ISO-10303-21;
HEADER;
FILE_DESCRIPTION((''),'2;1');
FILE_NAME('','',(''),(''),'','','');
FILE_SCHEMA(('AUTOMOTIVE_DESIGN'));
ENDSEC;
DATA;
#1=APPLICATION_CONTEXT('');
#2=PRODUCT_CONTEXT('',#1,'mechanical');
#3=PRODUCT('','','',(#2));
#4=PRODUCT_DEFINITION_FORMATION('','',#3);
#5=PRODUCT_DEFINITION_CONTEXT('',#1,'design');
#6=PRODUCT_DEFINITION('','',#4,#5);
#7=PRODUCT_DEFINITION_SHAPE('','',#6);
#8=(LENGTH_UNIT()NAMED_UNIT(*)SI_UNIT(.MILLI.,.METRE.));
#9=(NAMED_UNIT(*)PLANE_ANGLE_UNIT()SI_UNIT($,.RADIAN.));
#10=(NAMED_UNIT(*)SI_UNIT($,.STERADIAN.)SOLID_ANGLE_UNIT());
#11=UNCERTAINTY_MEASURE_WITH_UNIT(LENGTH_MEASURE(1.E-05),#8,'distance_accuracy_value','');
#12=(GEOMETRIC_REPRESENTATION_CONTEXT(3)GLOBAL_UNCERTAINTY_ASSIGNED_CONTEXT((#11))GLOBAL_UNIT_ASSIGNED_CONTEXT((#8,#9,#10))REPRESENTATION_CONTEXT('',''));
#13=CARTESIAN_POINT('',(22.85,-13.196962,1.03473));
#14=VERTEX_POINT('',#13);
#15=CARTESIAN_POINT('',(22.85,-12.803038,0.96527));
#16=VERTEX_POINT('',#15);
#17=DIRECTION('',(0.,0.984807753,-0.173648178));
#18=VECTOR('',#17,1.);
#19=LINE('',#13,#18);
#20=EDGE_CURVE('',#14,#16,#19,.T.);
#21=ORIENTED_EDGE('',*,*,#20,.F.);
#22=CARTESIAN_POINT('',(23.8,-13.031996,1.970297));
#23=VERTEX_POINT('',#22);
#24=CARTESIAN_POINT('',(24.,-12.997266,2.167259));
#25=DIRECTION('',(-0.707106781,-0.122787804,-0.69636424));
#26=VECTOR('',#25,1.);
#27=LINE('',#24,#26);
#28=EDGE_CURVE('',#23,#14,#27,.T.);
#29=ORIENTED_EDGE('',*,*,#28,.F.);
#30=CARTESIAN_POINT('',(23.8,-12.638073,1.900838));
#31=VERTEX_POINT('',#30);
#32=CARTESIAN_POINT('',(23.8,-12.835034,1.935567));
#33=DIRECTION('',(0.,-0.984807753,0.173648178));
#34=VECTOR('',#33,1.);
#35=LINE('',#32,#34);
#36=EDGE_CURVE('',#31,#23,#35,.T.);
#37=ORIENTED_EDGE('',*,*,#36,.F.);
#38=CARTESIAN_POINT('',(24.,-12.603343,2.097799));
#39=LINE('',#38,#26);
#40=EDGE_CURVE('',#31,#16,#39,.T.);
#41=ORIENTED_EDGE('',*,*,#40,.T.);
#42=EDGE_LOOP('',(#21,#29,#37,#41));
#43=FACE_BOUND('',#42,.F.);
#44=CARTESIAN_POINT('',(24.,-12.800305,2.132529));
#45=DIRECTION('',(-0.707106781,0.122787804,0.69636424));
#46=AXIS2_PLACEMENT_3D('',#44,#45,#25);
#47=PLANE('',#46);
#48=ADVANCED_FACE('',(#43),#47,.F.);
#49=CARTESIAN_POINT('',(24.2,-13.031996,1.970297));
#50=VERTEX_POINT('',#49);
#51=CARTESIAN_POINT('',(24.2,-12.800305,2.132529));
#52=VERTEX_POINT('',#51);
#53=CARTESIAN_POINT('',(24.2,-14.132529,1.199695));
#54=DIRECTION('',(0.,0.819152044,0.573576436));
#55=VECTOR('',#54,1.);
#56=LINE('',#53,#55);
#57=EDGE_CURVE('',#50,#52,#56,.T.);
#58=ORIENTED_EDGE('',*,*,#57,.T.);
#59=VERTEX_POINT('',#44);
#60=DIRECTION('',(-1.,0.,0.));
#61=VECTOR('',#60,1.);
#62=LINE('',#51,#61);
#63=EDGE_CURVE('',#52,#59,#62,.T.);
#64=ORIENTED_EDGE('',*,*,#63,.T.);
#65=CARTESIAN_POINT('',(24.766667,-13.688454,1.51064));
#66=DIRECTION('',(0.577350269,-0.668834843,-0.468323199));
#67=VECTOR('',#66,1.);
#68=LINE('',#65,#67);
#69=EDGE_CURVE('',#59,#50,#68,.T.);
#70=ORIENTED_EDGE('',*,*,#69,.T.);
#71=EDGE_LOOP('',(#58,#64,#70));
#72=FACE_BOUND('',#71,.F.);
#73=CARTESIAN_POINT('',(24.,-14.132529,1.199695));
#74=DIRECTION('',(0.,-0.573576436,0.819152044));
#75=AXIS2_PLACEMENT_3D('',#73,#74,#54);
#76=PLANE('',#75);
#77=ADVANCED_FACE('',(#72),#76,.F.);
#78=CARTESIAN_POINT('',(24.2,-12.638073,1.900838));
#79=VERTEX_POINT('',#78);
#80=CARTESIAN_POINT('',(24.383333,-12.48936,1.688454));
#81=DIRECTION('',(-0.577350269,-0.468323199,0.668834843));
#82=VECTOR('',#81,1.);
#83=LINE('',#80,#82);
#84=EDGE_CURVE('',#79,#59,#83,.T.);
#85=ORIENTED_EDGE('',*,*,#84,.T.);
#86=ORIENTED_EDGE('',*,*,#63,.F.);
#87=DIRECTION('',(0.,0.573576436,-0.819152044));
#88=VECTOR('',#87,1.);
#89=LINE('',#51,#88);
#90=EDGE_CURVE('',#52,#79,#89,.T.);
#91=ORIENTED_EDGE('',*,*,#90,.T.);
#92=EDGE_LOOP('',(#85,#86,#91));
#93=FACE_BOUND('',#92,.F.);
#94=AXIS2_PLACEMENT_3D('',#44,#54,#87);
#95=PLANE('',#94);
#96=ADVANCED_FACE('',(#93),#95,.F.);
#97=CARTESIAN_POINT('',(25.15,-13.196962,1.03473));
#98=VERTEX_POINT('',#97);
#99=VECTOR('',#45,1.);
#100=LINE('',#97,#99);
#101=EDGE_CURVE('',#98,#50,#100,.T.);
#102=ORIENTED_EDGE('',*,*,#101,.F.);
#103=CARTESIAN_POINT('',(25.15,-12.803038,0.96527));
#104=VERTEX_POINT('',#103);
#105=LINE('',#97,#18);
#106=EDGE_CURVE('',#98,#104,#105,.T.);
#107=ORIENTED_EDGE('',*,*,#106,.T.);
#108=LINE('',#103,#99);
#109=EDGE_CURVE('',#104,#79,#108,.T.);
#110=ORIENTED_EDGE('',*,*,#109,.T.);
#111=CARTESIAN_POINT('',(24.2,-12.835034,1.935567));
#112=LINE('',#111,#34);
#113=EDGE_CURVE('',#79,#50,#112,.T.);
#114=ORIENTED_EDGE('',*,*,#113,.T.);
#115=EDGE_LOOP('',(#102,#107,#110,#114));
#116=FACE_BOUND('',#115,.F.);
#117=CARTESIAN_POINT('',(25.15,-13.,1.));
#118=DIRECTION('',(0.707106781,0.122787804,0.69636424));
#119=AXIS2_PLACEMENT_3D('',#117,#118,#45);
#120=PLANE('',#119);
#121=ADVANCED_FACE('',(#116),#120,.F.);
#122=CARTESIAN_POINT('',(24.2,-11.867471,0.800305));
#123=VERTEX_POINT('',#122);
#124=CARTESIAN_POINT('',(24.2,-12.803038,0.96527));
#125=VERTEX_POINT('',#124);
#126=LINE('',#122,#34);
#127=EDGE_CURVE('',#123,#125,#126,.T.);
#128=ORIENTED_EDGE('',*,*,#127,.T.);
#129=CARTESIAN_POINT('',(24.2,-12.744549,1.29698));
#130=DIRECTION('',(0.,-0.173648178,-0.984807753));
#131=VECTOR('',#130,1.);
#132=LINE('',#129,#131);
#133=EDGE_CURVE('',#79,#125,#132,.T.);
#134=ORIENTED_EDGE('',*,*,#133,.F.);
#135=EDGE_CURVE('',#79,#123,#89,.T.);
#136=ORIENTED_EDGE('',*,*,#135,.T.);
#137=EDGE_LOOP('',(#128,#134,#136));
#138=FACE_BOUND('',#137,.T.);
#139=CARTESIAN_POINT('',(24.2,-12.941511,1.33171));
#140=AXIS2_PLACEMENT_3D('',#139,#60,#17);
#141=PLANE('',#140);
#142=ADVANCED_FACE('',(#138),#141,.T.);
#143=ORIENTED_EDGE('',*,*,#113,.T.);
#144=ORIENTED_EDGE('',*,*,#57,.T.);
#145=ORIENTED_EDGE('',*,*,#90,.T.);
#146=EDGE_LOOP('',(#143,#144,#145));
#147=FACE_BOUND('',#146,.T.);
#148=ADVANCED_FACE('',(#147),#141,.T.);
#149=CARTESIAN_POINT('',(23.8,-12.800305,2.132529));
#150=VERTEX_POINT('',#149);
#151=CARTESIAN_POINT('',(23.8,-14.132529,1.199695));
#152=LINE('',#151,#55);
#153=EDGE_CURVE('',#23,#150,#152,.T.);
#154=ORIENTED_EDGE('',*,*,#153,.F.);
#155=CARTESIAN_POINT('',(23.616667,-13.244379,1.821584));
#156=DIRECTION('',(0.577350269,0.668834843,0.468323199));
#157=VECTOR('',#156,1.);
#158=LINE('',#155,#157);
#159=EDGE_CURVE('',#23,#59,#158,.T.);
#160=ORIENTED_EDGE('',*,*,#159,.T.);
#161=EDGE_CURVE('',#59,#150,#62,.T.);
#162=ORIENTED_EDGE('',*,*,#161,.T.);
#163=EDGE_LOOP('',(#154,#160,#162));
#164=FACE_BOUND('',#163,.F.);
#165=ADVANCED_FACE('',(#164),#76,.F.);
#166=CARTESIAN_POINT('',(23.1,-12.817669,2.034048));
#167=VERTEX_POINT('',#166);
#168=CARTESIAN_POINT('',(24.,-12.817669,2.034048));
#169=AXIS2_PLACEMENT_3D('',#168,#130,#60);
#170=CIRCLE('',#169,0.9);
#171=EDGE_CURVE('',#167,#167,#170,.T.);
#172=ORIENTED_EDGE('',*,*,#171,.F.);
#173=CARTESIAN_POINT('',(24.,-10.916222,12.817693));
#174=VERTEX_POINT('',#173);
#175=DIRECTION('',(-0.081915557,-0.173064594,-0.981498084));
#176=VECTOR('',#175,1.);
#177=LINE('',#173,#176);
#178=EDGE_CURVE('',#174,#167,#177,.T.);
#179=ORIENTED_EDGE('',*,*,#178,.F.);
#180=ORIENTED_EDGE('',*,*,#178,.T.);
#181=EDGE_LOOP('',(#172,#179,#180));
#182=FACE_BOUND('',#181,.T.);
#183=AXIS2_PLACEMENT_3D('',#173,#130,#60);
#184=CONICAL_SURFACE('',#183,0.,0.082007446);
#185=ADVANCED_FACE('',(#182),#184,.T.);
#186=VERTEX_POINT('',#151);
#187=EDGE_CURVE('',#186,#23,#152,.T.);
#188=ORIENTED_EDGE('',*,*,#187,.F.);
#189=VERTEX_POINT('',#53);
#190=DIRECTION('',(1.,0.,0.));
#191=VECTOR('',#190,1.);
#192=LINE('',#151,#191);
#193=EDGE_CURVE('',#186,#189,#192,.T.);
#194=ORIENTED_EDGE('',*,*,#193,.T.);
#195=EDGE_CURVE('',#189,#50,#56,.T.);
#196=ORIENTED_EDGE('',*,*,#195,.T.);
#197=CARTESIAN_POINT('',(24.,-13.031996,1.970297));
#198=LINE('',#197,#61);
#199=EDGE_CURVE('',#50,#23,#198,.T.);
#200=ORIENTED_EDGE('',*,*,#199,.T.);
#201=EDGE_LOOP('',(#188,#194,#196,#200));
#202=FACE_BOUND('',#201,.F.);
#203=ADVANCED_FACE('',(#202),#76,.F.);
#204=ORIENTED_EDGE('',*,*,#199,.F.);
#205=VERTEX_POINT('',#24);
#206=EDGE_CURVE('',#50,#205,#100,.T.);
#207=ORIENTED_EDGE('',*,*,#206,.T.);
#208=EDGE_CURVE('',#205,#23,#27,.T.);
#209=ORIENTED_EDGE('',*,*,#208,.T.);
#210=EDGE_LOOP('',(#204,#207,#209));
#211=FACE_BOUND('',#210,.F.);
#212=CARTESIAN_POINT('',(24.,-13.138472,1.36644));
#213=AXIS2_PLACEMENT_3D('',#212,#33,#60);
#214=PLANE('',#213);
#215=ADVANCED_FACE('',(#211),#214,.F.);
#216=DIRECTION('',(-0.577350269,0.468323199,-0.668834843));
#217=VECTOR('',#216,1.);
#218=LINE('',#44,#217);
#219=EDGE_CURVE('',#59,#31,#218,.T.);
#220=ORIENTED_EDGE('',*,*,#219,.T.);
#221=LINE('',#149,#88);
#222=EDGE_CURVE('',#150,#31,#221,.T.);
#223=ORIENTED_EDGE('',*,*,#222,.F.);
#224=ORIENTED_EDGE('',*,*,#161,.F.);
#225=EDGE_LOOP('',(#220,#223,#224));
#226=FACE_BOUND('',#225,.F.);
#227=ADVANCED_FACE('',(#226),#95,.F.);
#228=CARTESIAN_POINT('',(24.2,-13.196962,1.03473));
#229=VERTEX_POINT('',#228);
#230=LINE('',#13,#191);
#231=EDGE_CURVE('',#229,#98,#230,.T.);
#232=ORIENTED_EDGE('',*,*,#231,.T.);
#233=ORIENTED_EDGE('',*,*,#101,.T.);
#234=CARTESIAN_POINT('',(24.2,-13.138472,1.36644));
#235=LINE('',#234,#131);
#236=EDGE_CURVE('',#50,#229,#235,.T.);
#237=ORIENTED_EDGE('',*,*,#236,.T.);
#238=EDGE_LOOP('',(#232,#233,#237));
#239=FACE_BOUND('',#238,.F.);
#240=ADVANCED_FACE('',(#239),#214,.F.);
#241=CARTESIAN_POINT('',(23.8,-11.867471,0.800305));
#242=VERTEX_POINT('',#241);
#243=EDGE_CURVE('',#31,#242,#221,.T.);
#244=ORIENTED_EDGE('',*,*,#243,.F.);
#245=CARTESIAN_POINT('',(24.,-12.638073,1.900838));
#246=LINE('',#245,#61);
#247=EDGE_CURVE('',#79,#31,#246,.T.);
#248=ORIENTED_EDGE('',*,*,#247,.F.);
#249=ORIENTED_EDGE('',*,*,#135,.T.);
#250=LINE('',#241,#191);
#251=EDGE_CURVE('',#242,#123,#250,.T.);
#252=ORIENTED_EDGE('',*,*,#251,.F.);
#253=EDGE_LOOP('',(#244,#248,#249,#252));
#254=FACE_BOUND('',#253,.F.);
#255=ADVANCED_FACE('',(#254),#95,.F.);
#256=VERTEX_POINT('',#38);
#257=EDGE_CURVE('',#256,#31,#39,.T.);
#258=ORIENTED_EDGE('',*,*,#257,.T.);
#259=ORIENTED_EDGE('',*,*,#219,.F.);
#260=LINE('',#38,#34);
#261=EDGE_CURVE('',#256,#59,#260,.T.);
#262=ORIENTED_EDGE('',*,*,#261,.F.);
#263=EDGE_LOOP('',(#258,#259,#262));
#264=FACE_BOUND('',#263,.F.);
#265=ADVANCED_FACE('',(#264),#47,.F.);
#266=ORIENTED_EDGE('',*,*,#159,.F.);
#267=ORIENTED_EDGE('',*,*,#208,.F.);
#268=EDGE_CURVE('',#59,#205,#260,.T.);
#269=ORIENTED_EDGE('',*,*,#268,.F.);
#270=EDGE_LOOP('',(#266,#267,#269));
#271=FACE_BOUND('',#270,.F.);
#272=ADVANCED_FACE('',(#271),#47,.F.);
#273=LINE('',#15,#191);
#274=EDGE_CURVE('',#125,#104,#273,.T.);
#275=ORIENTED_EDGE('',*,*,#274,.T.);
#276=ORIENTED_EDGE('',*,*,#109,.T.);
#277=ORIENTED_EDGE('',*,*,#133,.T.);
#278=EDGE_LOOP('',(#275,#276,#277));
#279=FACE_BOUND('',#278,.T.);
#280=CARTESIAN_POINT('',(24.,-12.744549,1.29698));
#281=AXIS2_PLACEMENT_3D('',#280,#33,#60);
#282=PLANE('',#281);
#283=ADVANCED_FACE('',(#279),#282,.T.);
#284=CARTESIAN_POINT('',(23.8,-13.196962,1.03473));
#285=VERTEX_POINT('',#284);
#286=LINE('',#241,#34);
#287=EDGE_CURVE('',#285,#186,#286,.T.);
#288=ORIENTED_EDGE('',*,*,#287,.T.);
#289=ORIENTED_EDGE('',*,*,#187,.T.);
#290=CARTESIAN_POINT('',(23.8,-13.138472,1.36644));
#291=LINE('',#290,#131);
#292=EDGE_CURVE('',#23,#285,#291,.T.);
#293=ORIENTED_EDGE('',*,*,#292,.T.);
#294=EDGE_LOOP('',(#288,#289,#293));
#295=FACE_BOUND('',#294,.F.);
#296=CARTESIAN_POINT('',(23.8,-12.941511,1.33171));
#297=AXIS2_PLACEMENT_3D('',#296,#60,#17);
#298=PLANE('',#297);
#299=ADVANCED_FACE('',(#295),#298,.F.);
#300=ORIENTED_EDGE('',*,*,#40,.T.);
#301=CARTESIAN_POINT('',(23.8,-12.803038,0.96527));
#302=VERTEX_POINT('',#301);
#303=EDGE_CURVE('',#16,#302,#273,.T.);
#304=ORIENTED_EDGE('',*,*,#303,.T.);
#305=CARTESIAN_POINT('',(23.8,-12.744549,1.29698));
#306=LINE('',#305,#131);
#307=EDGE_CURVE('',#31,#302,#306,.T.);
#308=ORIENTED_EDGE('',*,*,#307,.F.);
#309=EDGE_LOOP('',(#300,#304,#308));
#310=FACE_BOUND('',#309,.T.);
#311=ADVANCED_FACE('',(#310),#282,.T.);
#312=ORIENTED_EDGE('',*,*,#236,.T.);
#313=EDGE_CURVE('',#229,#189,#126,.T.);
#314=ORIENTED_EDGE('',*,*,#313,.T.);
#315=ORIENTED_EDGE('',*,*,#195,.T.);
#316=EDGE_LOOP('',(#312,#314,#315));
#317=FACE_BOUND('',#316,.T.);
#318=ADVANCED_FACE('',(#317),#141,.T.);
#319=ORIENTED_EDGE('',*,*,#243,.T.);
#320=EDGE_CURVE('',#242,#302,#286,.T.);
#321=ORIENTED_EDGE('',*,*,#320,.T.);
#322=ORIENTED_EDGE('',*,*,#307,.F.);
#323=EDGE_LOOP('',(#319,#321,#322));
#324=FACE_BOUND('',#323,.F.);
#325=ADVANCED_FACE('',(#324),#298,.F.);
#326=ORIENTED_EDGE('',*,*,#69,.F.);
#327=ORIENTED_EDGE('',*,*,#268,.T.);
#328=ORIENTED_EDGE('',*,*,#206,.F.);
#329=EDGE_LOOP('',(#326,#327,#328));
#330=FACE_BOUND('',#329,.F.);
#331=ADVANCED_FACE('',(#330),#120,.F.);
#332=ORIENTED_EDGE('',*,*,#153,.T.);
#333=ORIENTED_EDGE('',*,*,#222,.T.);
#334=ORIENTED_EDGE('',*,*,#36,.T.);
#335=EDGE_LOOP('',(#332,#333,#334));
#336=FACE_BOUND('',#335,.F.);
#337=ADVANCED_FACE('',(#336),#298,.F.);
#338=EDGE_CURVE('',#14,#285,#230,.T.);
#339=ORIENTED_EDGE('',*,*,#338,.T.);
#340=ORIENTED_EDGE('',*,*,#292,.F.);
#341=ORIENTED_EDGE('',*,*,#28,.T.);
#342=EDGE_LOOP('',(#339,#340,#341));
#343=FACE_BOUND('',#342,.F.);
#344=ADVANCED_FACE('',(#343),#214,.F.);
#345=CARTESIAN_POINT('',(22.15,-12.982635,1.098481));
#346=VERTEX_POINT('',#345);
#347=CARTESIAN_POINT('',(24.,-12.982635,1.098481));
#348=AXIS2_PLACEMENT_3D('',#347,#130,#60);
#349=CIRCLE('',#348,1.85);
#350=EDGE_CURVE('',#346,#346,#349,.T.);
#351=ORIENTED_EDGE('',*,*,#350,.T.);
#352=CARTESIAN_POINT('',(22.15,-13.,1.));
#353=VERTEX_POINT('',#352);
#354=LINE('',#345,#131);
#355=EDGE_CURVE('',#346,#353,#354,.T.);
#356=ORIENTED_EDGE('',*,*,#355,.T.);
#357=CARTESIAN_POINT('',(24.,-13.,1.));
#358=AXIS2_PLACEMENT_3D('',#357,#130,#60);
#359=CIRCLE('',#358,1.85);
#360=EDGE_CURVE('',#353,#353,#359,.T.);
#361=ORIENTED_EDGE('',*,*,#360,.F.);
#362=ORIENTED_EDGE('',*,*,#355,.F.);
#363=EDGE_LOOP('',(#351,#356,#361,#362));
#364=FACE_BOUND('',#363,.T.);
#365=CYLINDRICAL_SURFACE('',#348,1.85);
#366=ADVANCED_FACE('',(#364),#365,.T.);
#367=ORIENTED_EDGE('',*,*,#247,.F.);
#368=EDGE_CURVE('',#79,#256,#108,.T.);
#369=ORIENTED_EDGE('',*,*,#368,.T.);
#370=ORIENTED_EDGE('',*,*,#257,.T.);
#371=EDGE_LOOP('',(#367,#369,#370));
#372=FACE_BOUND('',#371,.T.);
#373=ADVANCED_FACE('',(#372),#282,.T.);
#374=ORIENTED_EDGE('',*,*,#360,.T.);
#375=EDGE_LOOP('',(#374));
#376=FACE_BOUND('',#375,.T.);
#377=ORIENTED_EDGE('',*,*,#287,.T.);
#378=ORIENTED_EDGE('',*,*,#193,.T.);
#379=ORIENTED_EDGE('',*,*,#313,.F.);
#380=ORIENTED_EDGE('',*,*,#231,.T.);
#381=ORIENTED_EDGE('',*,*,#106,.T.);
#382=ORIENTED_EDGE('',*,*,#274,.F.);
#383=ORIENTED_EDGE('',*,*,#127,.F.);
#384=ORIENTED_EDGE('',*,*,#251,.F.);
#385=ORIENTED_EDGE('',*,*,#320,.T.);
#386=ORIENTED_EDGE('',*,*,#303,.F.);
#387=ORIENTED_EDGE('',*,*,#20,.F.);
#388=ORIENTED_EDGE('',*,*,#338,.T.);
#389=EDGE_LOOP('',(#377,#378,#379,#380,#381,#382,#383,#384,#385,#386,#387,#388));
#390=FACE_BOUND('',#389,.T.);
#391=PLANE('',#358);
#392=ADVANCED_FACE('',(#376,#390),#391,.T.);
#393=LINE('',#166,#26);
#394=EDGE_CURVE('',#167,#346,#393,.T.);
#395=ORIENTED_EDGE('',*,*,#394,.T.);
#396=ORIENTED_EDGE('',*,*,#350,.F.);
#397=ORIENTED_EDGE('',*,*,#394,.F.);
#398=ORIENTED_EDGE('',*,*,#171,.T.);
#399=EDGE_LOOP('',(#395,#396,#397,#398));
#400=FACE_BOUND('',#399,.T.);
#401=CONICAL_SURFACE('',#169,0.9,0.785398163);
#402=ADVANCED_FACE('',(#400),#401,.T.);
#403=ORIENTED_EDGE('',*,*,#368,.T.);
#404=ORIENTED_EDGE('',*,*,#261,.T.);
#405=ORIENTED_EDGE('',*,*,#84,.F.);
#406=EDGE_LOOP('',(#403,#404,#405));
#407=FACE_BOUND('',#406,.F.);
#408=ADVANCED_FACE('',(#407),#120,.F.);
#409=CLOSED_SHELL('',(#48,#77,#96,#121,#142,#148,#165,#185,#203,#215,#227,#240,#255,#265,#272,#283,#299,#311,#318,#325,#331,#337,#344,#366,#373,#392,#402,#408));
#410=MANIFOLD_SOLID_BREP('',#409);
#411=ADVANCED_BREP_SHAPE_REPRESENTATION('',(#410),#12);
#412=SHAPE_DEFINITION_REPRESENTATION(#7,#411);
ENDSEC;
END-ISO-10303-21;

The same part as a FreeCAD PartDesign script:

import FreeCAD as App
import Part
import Sketcher
Q = App.Units.Quantity


def add_polygon(sketch, points):
    """Adds a closed chain of lines whose ends are joined by coincident constraints."""
    first, n = sketch.GeometryCount, len(points)
    for a, b in zip(points, points[1:] + points[:1]):
        sketch.addGeometry(Part.LineSegment(App.Vector(*a, 0), App.Vector(*b, 0)), False)
    for i in range(n):
        sketch.addConstraint(Sketcher.Constraint("Coincident", first + i, 2, first + (i + 1) % n, 1))

doc = App.newDocument("Part")
body = doc.addObject("PartDesign::Body", "Body")

# Sketch on XZ plane
sketch1 = body.newObject("Sketcher::SketchObject", "Sketch")
sketch1.AttachmentSupport = (doc.getObject("XZ_Plane"), [""])
sketch1.MapMode = "FlatFace"
add_polygon(sketch1, [(0, 0), (0, -12), (0.9, -1.05), (1.85, -0.1), (1.85, 0)])  # lines 0-4
sketch1.addConstraint([
    Sketcher.Constraint("Vertical", 0),
    Sketcher.Constraint("Vertical", 3),
    Sketcher.Constraint("Horizontal", 4),
    Sketcher.Constraint("Coincident", 4, 2, -1, 1),
    Sketcher.Constraint("DistanceY", 0, 2, 0, 1, Q("12 mm")),
    Sketcher.Constraint("Angle", 2, Q("45 deg")),
    Sketcher.Constraint("DistanceY", 3, 1, 3, 2, Q("0.1 mm")),
    Sketcher.Constraint("DistanceX", 4, 2, 4, 1, Q("1.85 mm")),
    Sketcher.Constraint("DistanceX", -1, 1, 1, 2, Q("0.9 mm")),
])
revolution = body.newObject("PartDesign::Revolution", "Revolution")
revolution.Profile = sketch1
revolution.ReferenceAxis = (sketch1, ["V_Axis"])
revolution.Angle = 360

# Sketch on XZ plane
sketch2 = body.newObject("Sketcher::SketchObject", "Sketch001")
sketch2.AttachmentSupport = (doc.getObject("XZ_Plane"), [""])
sketch2.MapMode = "FlatFace"
add_polygon(sketch2, [(-1.1, 0), (0, -1.1), (1.1, 0)])  # lines 0-2
sketch2.addConstraint([
    Sketcher.Constraint("Horizontal", 2),
    Sketcher.Constraint("Symmetric", 1, 2, 2, 2, -1, 1),
    Sketcher.Constraint("PointOnObject", 0, 2, -2),
    Sketcher.Constraint("Perpendicular", 0, 1),
    Sketcher.Constraint("DistanceX", 2, 2, 2, 1, Q("2.3 mm")),
])
pocket1 = body.newObject("PartDesign::Pocket", "Pocket")
pocket1.Profile = sketch2
pocket1.Length = 0.4
pocket1.Midplane = True
doc.recompute()

polarpattern = body.newObject("PartDesign::PolarPattern", "PolarPattern")
polarpattern.Originals = [pocket1]
polarpattern.Axis = (doc.getObject("Z_Axis"), [""])
polarpattern.Angle = 90
polarpattern.Occurrences = 2
body.Tip = polarpattern
body2 = doc.addObject("PartDesign::Body", "Body001")
doc.recompute()

body.Placement = App.Placement(App.Vector(0, 0, 0), App.Rotation(App.Vector(1, 0, 0), 190))
boolean = body2.newObject("PartDesign::Boolean", "Boolean")
boolean.Type = "Fuse"
boolean.addObjects([body])
body3 = doc.addObject("PartDesign::Body", "Body002")
doc.recompute()

body2.Placement = App.Placement(App.Vector(24, -13, 1), App.Rotation(App.Vector(0, 0, 1), 180))
boolean2 = body3.newObject("PartDesign::Boolean", "Boolean001")
boolean2.Type = "Fuse"
boolean2.addObjects([body2])

doc.recompute()
